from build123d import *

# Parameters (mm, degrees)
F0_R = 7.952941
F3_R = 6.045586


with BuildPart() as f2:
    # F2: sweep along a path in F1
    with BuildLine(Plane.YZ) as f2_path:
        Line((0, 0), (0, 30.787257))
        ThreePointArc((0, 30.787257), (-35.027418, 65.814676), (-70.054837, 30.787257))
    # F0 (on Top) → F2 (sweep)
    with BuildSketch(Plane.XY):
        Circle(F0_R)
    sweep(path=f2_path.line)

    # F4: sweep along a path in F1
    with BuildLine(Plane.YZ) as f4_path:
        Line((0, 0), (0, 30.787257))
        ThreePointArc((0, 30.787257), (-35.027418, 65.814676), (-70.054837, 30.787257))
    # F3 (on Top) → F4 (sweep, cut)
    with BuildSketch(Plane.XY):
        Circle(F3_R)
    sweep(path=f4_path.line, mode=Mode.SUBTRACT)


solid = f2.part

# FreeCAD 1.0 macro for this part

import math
import FreeCAD as App
import Part
import Sketcher

V = App.Vector
Q = App.Units.Quantity

doc = App.newDocument("Part")
body = doc.addObject("PartDesign::Body", "Body")

sketch1 = body.newObject("Sketcher::SketchObject", "Sketch")
sketch1.AttachmentSupport = (doc.getObject("XY_Plane"), [""])
sketch1.MapMode = "FlatFace"
sketch1.addGeometry(Part.Circle(V(0, 0, 0), V(0, 0, 1), 8), False)
sketch1.addConstraint([
    Sketcher.Constraint("Coincident", 0, 3, -1, 1),
    Sketcher.Constraint("Diameter", 0, Q("15.905882 mm")),
])

sketch2 = body.newObject("Sketcher::SketchObject", "Sketch001")
sketch2.AttachmentSupport = (doc.getObject("YZ_Plane"), [""])
sketch2.MapMode = "FlatFace"
sketch2.addGeometry([
    Part.LineSegment(V(0, 0, 0), V(0, 31, 0)),
    Part.ArcOfCircle(Part.Circle(V(-35, 31, 0), V(0, 0, 1), 35), math.radians(0), math.radians(180)),
], False)
sketch2.addConstraint([
    Sketcher.Constraint("Tangent", 0, 2, 1, 1),
    Sketcher.Constraint("Vertical", 0),
    Sketcher.Constraint("Coincident", 0, 1, -1, 1),
    Sketcher.Constraint("Horizontal", 0, 2, 1, 2),
    Sketcher.Constraint("Radius", 1, Q("35.027419 mm")),
    Sketcher.Constraint("DistanceY", 0, 1, 0, 2, Q("30.787257 mm")),
])
doc.recompute()

additivepipe = body.newObject("PartDesign::AdditivePipe", "AdditivePipe")
additivepipe.Profile = sketch1
additivepipe.Spine = (sketch2, ["Edge1", "Edge2"])

sketch3 = body.newObject("Sketcher::SketchObject", "Sketch002")
sketch3.AttachmentSupport = (doc.getObject("XY_Plane"), [""])
sketch3.MapMode = "FlatFace"
sketch3.addGeometry(Part.Circle(V(0, 0, 0), V(0, 0, 1), 6), False)
sketch3.addConstraint([
    Sketcher.Constraint("Coincident", 0, 3, -1, 1),
    Sketcher.Constraint("Diameter", 0, Q("12.091172 mm")),
])

sketch4 = body.newObject("Sketcher::SketchObject", "Sketch003")
sketch4.AttachmentSupport = (doc.getObject("YZ_Plane"), [""])
sketch4.MapMode = "FlatFace"
sketch4.addGeometry([
    Part.LineSegment(V(0, 0, 0), V(0, 31, 0)),
    Part.ArcOfCircle(Part.Circle(V(-35, 31, 0), V(0, 0, 1), 35), math.radians(0), math.radians(180)),
], False)
sketch4.addConstraint([
    Sketcher.Constraint("Tangent", 0, 2, 1, 1),
    Sketcher.Constraint("Vertical", 0),
    Sketcher.Constraint("Coincident", 0, 1, -1, 1),
    Sketcher.Constraint("Horizontal", 0, 2, 1, 2),
    Sketcher.Constraint("Radius", 1, Q("35.027419 mm")),
    Sketcher.Constraint("DistanceY", 0, 1, 0, 2, Q("30.787257 mm")),
])
doc.recompute()

subtractivepipe = body.newObject("PartDesign::SubtractivePipe", "SubtractivePipe")
subtractivepipe.Profile = sketch3
subtractivepipe.Spine = (sketch4, ["Edge1", "Edge2"])

doc.recompute()
